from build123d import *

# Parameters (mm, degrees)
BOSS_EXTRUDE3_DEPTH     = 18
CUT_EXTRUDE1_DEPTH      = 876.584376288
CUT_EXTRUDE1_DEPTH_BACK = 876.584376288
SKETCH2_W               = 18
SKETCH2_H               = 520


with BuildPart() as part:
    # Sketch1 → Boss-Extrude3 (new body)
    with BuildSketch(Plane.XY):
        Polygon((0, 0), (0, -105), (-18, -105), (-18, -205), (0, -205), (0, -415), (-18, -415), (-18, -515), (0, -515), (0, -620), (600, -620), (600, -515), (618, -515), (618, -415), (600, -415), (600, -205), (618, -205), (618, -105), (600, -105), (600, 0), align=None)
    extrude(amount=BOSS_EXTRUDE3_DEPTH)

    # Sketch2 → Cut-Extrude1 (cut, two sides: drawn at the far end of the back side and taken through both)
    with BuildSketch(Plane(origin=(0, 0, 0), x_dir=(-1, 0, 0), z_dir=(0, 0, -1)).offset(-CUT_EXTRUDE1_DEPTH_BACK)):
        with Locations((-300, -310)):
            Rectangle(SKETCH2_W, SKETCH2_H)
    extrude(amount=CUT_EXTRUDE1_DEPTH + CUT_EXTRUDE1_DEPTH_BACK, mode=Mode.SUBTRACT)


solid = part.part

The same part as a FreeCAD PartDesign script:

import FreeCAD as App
import Part
import Sketcher

V = App.Vector

doc = App.newDocument("Part")
params = doc.addObject("Spreadsheet::Sheet", "Params")
for row, (alias, value) in enumerate([
    ("sketch1_width", "18 mm"),
    ("sketch1_width2", "600 mm"),
    ("sketch1_height", "105 mm"),
    ("sketch1_height2", "100 mm"),
    ("sketch1_height3", "210 mm"),
    ("pad1_length", "18 mm"),
    ("sketch2_width", "18 mm"),
    ("sketch2_height", "520 mm"),
], start=1):
    params.set(f"A{row}", alias)
    params.set(f"B{row}", "=" + value)
    params.setAlias(f"B{row}", alias)

body = doc.addObject("PartDesign::Body", "Body")

# Sketch on XY plane
sketch1 = body.newObject("Sketcher::SketchObject", "Sketch")
sketch1.AttachmentSupport = (doc.getObject("XY_Plane"), [""])
sketch1.MapMode = "FlatFace"
sketch1.addGeometry(Part.LineSegment(V(0, 0, 0), V(0, -105, 0)), False)
sketch1.addGeometry(Part.LineSegment(V(0, -105, 0), V(-18, -105, 0)), False)
sketch1.addGeometry(Part.LineSegment(V(-18, -105, 0), V(-18, -205, 0)), False)
sketch1.addGeometry(Part.LineSegment(V(-18, -205, 0), V(0, -205, 0)), False)
sketch1.addGeometry(Part.LineSegment(V(0, -205, 0), V(0, -415, 0)), False)
sketch1.addGeometry(Part.LineSegment(V(0, -415, 0), V(-18, -415, 0)), False)
sketch1.addGeometry(Part.LineSegment(V(-18, -415, 0), V(-18, -515, 0)), False)
sketch1.addGeometry(Part.LineSegment(V(-18, -515, 0), V(0, -515, 0)), False)
sketch1.addGeometry(Part.LineSegment(V(0, -515, 0), V(0, -620, 0)), False)
sketch1.addGeometry(Part.LineSegment(V(0, -620, 0), V(600, -620, 0)), False)
sketch1.addGeometry(Part.LineSegment(V(600, -620, 0), V(600, -515, 0)), False)
sketch1.addGeometry(Part.LineSegment(V(600, -515, 0), V(618, -515, 0)), False)
sketch1.addGeometry(Part.LineSegment(V(618, -515, 0), V(618, -415, 0)), False)
sketch1.addGeometry(Part.LineSegment(V(618, -415, 0), V(600, -415, 0)), False)
sketch1.addGeometry(Part.LineSegment(V(600, -415, 0), V(600, -205, 0)), False)
sketch1.addGeometry(Part.LineSegment(V(600, -205, 0), V(618, -205, 0)), False)
sketch1.addGeometry(Part.LineSegment(V(618, -205, 0), V(618, -105, 0)), False)
sketch1.addGeometry(Part.LineSegment(V(618, -105, 0), V(600, -105, 0)), False)
sketch1.addGeometry(Part.LineSegment(V(600, -105, 0), V(600, 0, 0)), False)
sketch1.addGeometry(Part.LineSegment(V(600, 0, 0), V(0, 0, 0)), False)
sketch1.addConstraint(Sketcher.Constraint("Coincident", 0, 2, 1, 1))
sketch1.addConstraint(Sketcher.Constraint("Coincident", 1, 2, 2, 1))
sketch1.addConstraint(Sketcher.Constraint("Coincident", 2, 2, 3, 1))
sketch1.addConstraint(Sketcher.Constraint("Coincident", 3, 2, 4, 1))
sketch1.addConstraint(Sketcher.Constraint("Coincident", 4, 2, 5, 1))
sketch1.addConstraint(Sketcher.Constraint("Coincident", 5, 2, 6, 1))
sketch1.addConstraint(Sketcher.Constraint("Coincident", 6, 2, 7, 1))
sketch1.addConstraint(Sketcher.Constraint("Coincident", 7, 2, 8, 1))
sketch1.addConstraint(Sketcher.Constraint("Coincident", 8, 2, 9, 1))
sketch1.addConstraint(Sketcher.Constraint("Coincident", 9, 2, 10, 1))
sketch1.addConstraint(Sketcher.Constraint("Coincident", 10, 2, 11, 1))
sketch1.addConstraint(Sketcher.Constraint("Coincident", 11, 2, 12, 1))
sketch1.addConstraint(Sketcher.Constraint("Coincident", 12, 2, 13, 1))
sketch1.addConstraint(Sketcher.Constraint("Coincident", 13, 2, 14, 1))
sketch1.addConstraint(Sketcher.Constraint("Coincident", 14, 2, 15, 1))
sketch1.addConstraint(Sketcher.Constraint("Coincident", 15, 2, 16, 1))
sketch1.addConstraint(Sketcher.Constraint("Coincident", 16, 2, 17, 1))
sketch1.addConstraint(Sketcher.Constraint("Coincident", 17, 2, 18, 1))
sketch1.addConstraint(Sketcher.Constraint("Coincident", 18, 2, 19, 1))
sketch1.addConstraint(Sketcher.Constraint("Coincident", 19, 2, 0, 1))
sketch1.addConstraint(Sketcher.Constraint("Vertical", 0))
sketch1.addConstraint(Sketcher.Constraint("Horizontal", 1))
sketch1.addConstraint(Sketcher.Constraint("Vertical", 2))
sketch1.addConstraint(Sketcher.Constraint("Horizontal", 3))
sketch1.addConstraint(Sketcher.Constraint("Vertical", 4))
sketch1.addConstraint(Sketcher.Constraint("Horizontal", 5))
sketch1.addConstraint(Sketcher.Constraint("Vertical", 6))
sketch1.addConstraint(Sketcher.Constraint("Horizontal", 7))
sketch1.addConstraint(Sketcher.Constraint("Vertical", 8))
sketch1.addConstraint(Sketcher.Constraint("Horizontal", 9))
sketch1.addConstraint(Sketcher.Constraint("Vertical", 10))
sketch1.addConstraint(Sketcher.Constraint("Horizontal", 11))
sketch1.addConstraint(Sketcher.Constraint("Vertical", 12))
sketch1.addConstraint(Sketcher.Constraint("Horizontal", 13))
sketch1.addConstraint(Sketcher.Constraint("Vertical", 14))
sketch1.addConstraint(Sketcher.Constraint("Horizontal", 15))
sketch1.addConstraint(Sketcher.Constraint("Vertical", 16))
sketch1.addConstraint(Sketcher.Constraint("Horizontal", 17))
sketch1.addConstraint(Sketcher.Constraint("Vertical", 18))
sketch1.addConstraint(Sketcher.Constraint("Horizontal", 19))
sketch1.addConstraint(Sketcher.Constraint("Coincident", 19, 2, -1, 1))
sketch1.addConstraint(Sketcher.Constraint("PointOnObject", 3, 2, -2))
sketch1.addConstraint(Sketcher.Constraint("PointOnObject", 7, 2, -2))
sketch1.addConstraint(Sketcher.Constraint("Horizontal", 7, 2, 10, 2))
sketch1.addConstraint(Sketcher.Constraint("Horizontal", 5, 2, 12, 2))
sketch1.addConstraint(Sketcher.Constraint("Horizontal", 3, 2, 14, 2))
sketch1.addConstraint(Sketcher.Constraint("Horizontal", 1, 2, 16, 2))
sketch1.addConstraint(Sketcher.Constraint("Vertical", 2, 2, 5, 2))
sketch1.addConstraint(Sketcher.Constraint("Vertical", 10, 2, 13, 2))
sketch1.addConstraint(Sketcher.Constraint("Vertical", 12, 2, 15, 2))
sketch1.addConstraint(Sketcher.Constraint("Vertical", 14, 2, 17, 2))
sketch1.addConstraint(Sketcher.Constraint("Equal", 7, 11))
sketch1.addConstraint(Sketcher.Constraint("Equal", 2, 6))
sketch1.addConstraint(Sketcher.Constraint("Equal", 0, 8))
sketch1.addConstraint(Sketcher.Constraint("DistanceX", 1, 2, 1, 1, 18.0))
sketch1.addConstraint(Sketcher.Constraint("DistanceX", 9, 1, 9, 2, 600.0))
sketch1.addConstraint(Sketcher.Constraint("DistanceY", 0, 2, 0, 1, 105.0))
sketch1.addConstraint(Sketcher.Constraint("DistanceY", 2, 2, 2, 1, 100.0))
sketch1.addConstraint(Sketcher.Constraint("DistanceY", 4, 2, 4, 1, 210.0))
sketch1.setExpression("Constraints[54]", "Params.sketch1_width")
sketch1.setExpression("Constraints[55]", "Params.sketch1_width2")
sketch1.setExpression("Constraints[56]", "Params.sketch1_height")
sketch1.setExpression("Constraints[57]", "Params.sketch1_height2")
sketch1.setExpression("Constraints[58]", "Params.sketch1_height3")
pad1 = body.newObject("PartDesign::Pad", "Pad")
pad1.Profile = sketch1
pad1.setExpression("Length", "Params.pad1_length")

# Sketch on XY plane
sketch2 = body.newObject("Sketcher::SketchObject", "Sketch001")
sketch2.AttachmentSupport = (doc.getObject("XY_Plane"), [""])
sketch2.MapMode = "FlatFace"
sketch2.addGeometry(Part.LineSegment(V(309, -50, 0), V(309, -570, 0)), False)
sketch2.addGeometry(Part.LineSegment(V(309, -570, 0), V(291, -570, 0)), False)
sketch2.addGeometry(Part.LineSegment(V(291, -570, 0), V(291, -50, 0)), False)
sketch2.addGeometry(Part.LineSegment(V(291, -50, 0), V(309, -50, 0)), False)
sketch2.addConstraint(Sketcher.Constraint("Coincident", 0, 2, 1, 1))
sketch2.addConstraint(Sketcher.Constraint("Coincident", 1, 2, 2, 1))
sketch2.addConstraint(Sketcher.Constraint("Coincident", 2, 2, 3, 1))
sketch2.addConstraint(Sketcher.Constraint("Coincident", 3, 2, 0, 1))
sketch2.addConstraint(Sketcher.Constraint("Vertical", 0))
sketch2.addConstraint(Sketcher.Constraint("Horizontal", 1))
sketch2.addConstraint(Sketcher.Constraint("Vertical", 2))
sketch2.addConstraint(Sketcher.Constraint("Horizontal", 3))
sketch2.addConstraint(Sketcher.Constraint("DistanceX", 1, 2, 1, 1, 18.0))
sketch2.addConstraint(Sketcher.Constraint("DistanceY", 0, 2, 0, 1, 520.0))
sketch2.addConstraint(Sketcher.Constraint("DistanceX", -1, 1, 0, 2, 309.0))
sketch2.addConstraint(Sketcher.Constraint("DistanceY", 0, 2, -1, 1, 570.0))
sketch2.setExpression("Constraints[8]", "Params.sketch2_width")
sketch2.setExpression("Constraints[9]", "Params.sketch2_height")
pocket1 = body.newObject("PartDesign::Pocket", "Pocket")
pocket1.Profile = sketch2
pocket1.Type = "ThroughAll"
pocket1.Midplane = True

doc.recompute()
